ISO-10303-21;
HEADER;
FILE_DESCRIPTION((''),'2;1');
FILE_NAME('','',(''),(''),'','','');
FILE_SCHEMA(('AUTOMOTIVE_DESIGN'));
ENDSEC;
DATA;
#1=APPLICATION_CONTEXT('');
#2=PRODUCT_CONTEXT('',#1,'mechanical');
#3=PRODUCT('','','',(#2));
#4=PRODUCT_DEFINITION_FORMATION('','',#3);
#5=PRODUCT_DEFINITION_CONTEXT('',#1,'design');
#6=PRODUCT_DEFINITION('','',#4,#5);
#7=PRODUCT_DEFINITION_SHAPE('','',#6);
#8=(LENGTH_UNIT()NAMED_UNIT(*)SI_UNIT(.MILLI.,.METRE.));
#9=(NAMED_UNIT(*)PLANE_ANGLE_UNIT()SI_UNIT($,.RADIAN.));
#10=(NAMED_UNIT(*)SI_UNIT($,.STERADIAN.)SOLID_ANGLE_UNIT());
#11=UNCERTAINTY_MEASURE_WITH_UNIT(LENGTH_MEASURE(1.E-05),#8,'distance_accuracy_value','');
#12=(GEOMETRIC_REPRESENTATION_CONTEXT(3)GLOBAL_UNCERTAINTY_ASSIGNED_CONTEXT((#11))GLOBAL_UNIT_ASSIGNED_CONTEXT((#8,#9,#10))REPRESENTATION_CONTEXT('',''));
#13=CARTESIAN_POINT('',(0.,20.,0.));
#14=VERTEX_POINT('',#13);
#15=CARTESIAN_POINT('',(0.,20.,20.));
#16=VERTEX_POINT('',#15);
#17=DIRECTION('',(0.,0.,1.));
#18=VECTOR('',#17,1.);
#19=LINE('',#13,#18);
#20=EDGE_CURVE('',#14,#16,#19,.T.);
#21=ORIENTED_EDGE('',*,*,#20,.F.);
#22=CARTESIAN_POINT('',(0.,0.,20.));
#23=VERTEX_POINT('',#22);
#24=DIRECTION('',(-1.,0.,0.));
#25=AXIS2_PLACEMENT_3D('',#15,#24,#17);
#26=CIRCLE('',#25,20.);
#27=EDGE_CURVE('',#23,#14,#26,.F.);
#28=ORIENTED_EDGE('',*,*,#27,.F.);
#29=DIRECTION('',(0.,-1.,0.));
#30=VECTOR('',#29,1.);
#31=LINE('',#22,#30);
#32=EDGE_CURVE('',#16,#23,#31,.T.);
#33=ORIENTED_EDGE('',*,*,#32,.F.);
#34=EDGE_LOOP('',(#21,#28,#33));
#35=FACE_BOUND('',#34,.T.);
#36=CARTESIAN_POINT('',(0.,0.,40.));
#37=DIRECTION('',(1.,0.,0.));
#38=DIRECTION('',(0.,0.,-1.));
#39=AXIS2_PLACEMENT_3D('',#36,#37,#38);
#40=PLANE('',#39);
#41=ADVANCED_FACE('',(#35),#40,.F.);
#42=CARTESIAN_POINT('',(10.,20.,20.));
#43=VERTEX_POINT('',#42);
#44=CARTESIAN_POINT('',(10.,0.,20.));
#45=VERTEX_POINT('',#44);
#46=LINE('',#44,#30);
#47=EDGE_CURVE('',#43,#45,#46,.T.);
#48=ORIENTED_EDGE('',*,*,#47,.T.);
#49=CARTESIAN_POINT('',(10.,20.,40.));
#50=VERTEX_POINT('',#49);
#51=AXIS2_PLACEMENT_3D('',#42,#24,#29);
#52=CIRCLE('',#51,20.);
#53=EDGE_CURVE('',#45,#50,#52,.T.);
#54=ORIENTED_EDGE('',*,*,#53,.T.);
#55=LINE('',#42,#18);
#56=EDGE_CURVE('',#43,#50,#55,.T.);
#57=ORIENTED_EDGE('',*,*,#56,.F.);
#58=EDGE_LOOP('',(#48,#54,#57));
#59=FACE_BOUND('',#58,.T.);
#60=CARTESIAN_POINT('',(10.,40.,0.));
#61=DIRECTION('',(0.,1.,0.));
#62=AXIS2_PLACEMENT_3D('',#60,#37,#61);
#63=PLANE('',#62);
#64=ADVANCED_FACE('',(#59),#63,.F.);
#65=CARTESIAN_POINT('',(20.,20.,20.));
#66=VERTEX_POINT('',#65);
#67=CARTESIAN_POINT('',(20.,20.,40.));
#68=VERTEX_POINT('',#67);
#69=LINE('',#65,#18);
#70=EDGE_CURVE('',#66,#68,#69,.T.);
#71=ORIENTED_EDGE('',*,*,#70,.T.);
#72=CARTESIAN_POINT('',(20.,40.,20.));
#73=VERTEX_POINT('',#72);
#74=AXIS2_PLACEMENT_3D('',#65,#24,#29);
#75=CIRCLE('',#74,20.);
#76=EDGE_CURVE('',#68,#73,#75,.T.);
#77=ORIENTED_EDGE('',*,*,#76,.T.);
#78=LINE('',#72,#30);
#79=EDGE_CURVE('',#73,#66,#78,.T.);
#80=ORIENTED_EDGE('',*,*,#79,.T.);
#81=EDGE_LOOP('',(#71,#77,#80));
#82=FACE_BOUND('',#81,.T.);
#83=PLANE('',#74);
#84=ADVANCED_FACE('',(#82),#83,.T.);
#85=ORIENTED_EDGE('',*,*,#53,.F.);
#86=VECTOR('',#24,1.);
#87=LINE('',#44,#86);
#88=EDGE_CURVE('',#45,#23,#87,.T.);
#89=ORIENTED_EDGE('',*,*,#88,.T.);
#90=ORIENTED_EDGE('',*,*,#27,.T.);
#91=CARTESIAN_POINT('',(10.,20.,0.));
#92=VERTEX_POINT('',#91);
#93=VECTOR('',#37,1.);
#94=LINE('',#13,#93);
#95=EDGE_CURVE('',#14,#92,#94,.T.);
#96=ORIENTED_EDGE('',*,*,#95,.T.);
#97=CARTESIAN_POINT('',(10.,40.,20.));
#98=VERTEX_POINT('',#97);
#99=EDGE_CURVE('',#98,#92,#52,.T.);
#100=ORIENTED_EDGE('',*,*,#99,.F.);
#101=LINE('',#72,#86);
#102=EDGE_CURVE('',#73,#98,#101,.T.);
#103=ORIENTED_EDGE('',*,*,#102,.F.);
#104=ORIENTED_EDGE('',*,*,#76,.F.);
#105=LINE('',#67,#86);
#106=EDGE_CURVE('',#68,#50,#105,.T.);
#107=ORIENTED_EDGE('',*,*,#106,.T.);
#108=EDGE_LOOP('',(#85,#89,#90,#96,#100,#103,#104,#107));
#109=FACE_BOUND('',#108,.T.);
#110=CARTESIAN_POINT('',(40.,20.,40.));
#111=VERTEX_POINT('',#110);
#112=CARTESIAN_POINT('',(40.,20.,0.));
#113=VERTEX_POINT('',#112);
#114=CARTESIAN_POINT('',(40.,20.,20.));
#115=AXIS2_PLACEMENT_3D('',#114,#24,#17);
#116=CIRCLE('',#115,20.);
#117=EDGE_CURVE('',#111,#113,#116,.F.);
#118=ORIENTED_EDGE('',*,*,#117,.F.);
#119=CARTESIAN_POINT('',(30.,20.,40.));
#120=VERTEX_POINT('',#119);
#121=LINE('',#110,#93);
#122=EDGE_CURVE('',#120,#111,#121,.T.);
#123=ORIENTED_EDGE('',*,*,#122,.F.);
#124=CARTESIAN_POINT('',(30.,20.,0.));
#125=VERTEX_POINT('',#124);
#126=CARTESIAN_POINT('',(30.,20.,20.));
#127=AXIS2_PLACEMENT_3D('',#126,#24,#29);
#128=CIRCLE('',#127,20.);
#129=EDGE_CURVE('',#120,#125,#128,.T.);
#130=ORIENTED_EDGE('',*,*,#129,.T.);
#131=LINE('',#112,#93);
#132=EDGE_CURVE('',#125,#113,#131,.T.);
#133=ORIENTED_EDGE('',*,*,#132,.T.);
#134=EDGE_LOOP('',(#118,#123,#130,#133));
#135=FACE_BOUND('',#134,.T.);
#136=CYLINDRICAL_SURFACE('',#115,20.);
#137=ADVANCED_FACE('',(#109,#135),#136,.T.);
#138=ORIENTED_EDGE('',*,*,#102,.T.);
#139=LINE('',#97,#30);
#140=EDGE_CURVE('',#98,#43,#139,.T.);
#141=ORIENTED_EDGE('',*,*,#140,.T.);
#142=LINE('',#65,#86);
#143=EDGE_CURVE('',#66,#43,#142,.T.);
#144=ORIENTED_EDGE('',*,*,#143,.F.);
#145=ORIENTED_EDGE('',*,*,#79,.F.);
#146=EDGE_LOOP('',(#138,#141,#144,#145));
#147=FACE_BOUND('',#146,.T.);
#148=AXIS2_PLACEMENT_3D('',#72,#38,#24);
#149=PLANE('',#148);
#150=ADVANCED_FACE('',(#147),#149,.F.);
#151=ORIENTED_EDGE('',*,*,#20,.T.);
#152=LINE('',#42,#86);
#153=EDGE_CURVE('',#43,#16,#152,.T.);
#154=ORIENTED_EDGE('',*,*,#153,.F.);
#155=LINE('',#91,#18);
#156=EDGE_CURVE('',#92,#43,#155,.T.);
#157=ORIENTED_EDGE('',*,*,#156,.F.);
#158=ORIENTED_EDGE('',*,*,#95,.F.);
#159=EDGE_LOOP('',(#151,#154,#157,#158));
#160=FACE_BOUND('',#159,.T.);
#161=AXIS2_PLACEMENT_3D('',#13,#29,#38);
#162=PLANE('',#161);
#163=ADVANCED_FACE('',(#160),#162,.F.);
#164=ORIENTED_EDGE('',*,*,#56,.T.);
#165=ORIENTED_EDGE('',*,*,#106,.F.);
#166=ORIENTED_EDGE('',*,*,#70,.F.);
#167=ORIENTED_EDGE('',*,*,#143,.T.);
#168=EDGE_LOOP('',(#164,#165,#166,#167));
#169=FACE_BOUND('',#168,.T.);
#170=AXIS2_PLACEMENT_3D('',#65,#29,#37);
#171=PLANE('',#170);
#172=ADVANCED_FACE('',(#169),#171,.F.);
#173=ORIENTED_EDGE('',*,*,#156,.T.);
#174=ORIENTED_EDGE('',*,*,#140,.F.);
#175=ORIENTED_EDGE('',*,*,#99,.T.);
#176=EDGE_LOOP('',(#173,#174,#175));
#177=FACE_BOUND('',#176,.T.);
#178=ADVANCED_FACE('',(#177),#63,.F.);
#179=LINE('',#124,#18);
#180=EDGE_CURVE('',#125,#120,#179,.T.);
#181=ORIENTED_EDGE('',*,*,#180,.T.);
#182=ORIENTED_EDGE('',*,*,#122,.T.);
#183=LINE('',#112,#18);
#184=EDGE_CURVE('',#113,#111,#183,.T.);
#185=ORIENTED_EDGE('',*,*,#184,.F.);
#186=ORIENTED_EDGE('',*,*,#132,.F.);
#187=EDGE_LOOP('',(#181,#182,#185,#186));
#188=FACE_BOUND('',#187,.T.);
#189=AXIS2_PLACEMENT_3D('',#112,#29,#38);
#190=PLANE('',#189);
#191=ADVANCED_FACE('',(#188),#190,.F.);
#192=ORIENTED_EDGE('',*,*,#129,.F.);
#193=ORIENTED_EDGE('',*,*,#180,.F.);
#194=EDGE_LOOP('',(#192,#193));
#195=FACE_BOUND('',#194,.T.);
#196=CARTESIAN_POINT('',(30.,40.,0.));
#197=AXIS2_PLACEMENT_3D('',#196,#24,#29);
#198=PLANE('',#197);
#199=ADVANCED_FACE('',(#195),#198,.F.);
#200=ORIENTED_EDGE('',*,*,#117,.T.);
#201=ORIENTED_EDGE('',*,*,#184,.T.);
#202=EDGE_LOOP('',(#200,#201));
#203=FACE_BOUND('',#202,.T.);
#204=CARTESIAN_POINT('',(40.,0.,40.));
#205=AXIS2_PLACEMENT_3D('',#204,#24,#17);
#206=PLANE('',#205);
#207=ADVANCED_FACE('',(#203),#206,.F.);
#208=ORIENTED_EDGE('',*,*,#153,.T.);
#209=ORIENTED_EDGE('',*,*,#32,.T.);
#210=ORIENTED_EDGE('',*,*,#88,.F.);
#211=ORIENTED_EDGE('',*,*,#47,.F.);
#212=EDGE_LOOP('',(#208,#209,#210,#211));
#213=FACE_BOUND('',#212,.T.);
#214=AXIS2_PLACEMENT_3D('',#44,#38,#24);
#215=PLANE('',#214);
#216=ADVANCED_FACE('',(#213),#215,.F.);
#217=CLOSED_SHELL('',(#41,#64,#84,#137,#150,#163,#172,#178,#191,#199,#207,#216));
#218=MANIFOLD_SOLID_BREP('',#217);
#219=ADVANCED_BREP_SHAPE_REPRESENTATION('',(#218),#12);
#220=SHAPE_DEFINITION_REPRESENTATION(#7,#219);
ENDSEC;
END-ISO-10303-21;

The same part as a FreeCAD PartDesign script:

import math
import FreeCAD as App
import Part
import Sketcher
from FreeCAD import Vector

doc = App.newDocument("Part")
body = doc.addObject("PartDesign::Body", "Body")

sketch1 = doc.addObject("Sketcher::SketchObject", "Sketch")
body.addObject(sketch1)
sketch1.AttachmentSupport = (doc.XY_Plane, [""])
sketch1.MapMode = "FlatFace"
sketch1.addGeometry(Part.LineSegment(Vector(0, 40, 0), Vector(0, 0, 0)), False)
sketch1.addGeometry(Part.LineSegment(Vector(0, 0, 0), Vector(40, 0, 0)), False)
sketch1.addGeometry(Part.LineSegment(Vector(40, 0, 0), Vector(40, 40, 0)), False)
sketch1.addGeometry(Part.LineSegment(Vector(40, 40, 0), Vector(0, 40, 0)), False)
sketch1.addConstraint(Sketcher.Constraint("Coincident", 0, 2, 1, 1))
sketch1.addConstraint(Sketcher.Constraint("Coincident", 1, 2, 2, 1))
sketch1.addConstraint(Sketcher.Constraint("Coincident", 2, 2, 3, 1))
sketch1.addConstraint(Sketcher.Constraint("Coincident", 3, 2, 0, 1))
sketch1.addConstraint(Sketcher.Constraint("Vertical", 0))
sketch1.addConstraint(Sketcher.Constraint("Horizontal", 1))
sketch1.addConstraint(Sketcher.Constraint("Vertical", 2))
sketch1.addConstraint(Sketcher.Constraint("Horizontal", 3))
sketch1.addConstraint(Sketcher.Constraint("Coincident", 0, 2, -1, 1))
sketch1.addConstraint(Sketcher.Constraint("Equal", 3, 0))
sketch1.addConstraint(Sketcher.Constraint("DistanceX", 1, 1, 1, 2, 40.0))
pad1 = doc.addObject("PartDesign::Pad", "Pad")
body.addObject(pad1)
pad1.Profile = sketch1
pad1.Length = 40

sketch2 = doc.addObject("Sketcher::SketchObject", "Sketch001")
body.addObject(sketch2)
sketch2.AttachmentSupport = (doc.XY_Plane, [""])
sketch2.MapMode = "FlatFace"
sketch2.AttachmentOffset = App.Placement(Vector(0, 0, 40), App.Rotation())
sketch2.addGeometry(Part.LineSegment(Vector(0, 40, 0), Vector(0, 20, 0)), False)
sketch2.addGeometry(Part.LineSegment(Vector(0, 20, 0), Vector(10, 20, 0)), False)
sketch2.addGeometry(Part.LineSegment(Vector(10, 20, 0), Vector(10, 40, 0)), False)
sketch2.addGeometry(Part.LineSegment(Vector(10, 40, 0), Vector(0, 40, 0)), False)
sketch2.addGeometry(Part.LineSegment(Vector(30, 40, 0), Vector(30, 20, 0)), False)
sketch2.addGeometry(Part.LineSegment(Vector(30, 20, 0), Vector(40, 20, 0)), False)
sketch2.addGeometry(Part.LineSegment(Vector(40, 20, 0), Vector(40, 40, 0)), False)
sketch2.addGeometry(Part.LineSegment(Vector(40, 40, 0), Vector(30, 40, 0)), False)
sketch2.addConstraint(Sketcher.Constraint("Coincident", 0, 2, 1, 1))
sketch2.addConstraint(Sketcher.Constraint("Coincident", 1, 2, 2, 1))
sketch2.addConstraint(Sketcher.Constraint("Coincident", 2, 2, 3, 1))
sketch2.addConstraint(Sketcher.Constraint("Coincident", 3, 2, 0, 1))
sketch2.addConstraint(Sketcher.Constraint("Coincident", 4, 2, 5, 1))
sketch2.addConstraint(Sketcher.Constraint("Coincident", 5, 2, 6, 1))
sketch2.addConstraint(Sketcher.Constraint("Coincident", 6, 2, 7, 1))
sketch2.addConstraint(Sketcher.Constraint("Coincident", 7, 2, 4, 1))
sketch2.addConstraint(Sketcher.Constraint("Vertical", 0))
sketch2.addConstraint(Sketcher.Constraint("Horizontal", 1))
sketch2.addConstraint(Sketcher.Constraint("Vertical", 2))
sketch2.addConstraint(Sketcher.Constraint("Horizontal", 3))
sketch2.addConstraint(Sketcher.Constraint("Vertical", 4))
sketch2.addConstraint(Sketcher.Constraint("Horizontal", 5))
sketch2.addConstraint(Sketcher.Constraint("Vertical", 6))
sketch2.addConstraint(Sketcher.Constraint("Horizontal", 7))
sketch2.addConstraint(Sketcher.Constraint("PointOnObject", 0, 2, -2))
sketch2.addConstraint(Sketcher.Constraint("Horizontal", 1, 2, 4, 2))
sketch2.addConstraint(Sketcher.Constraint("Horizontal", 3, 2, 6, 2))
sketch2.addConstraint(Sketcher.Constraint("Equal", 3, 5))
sketch2.addConstraint(Sketcher.Constraint("DistanceX", 1, 1, 1, 2, 10.0))
sketch2.addConstraint(Sketcher.Constraint("DistanceY", 0, 2, 0, 1, 20.0))
sketch2.addConstraint(Sketcher.Constraint("DistanceY", -1, 1, 0, 2, 20.0))
sketch2.addConstraint(Sketcher.Constraint("DistanceX", -1, 1, 4, 2, 30.0))
pocket1 = doc.addObject("PartDesign::Pocket", "Pocket")
body.addObject(pocket1)
pocket1.Profile = sketch2
pocket1.Length = 40

sketch3 = doc.addObject("Sketcher::SketchObject", "Sketch002")
body.addObject(sketch3)
sketch3.AttachmentSupport = (doc.YZ_Plane, [""])
sketch3.MapMode = "FlatFace"
sketch3.addGeometry(Part.ArcOfCircle(Part.Circle(Vector(20, 20, 0), Vector(0, 0, 1), 20), math.radians(180), math.radians(270)), False)
sketch3.addGeometry(Part.LineSegment(Vector(20, 0, 0), Vector(0, 0, 0)), False)
sketch3.addGeometry(Part.LineSegment(Vector(0, 0, 0), Vector(0, 20, 0)), False)
sketch3.addGeometry(Part.ArcOfCircle(Part.Circle(Vector(20, 20, 0), Vector(0, 0, 1), 20), math.radians(90), math.radians(180)), False)
sketch3.addGeometry(Part.LineSegment(Vector(0, 20, 0), Vector(0, 40, 0)), False)
sketch3.addGeometry(Part.LineSegment(Vector(0, 40, 0), Vector(20, 40, 0)), False)
sketch3.addConstraint(Sketcher.Constraint("Tangent", 0, 2, 1, 1))
sketch3.addConstraint(Sketcher.Constraint("Coincident", 1, 2, 2, 1))
sketch3.addConstraint(Sketcher.Constraint("Tangent", 2, 2, 0, 1))
sketch3.addConstraint(Sketcher.Constraint("Tangent", 3, 2, 4, 1))
sketch3.addConstraint(Sketcher.Constraint("Coincident", 4, 2, 5, 1))
sketch3.addConstraint(Sketcher.Constraint("Tangent", 5, 2, 3, 1))
sketch3.addConstraint(Sketcher.Constraint("Horizontal", 1))
sketch3.addConstraint(Sketcher.Constraint("Vertical", 2))
sketch3.addConstraint(Sketcher.Constraint("Vertical", 4))
sketch3.addConstraint(Sketcher.Constraint("Horizontal", 5))
sketch3.addConstraint(Sketcher.Constraint("Coincident", 1, 2, -1, 1))
sketch3.addConstraint(Sketcher.Constraint("Coincident", 3, 3, 0, 3))
sketch3.addConstraint(Sketcher.Constraint("Equal", 0, 3))
sketch3.addConstraint(Sketcher.Constraint("Radius", 0, 20.0))
pocket2 = doc.addObject("PartDesign::Pocket", "Pocket001")
body.addObject(pocket2)
pocket2.Profile = sketch3
pocket2.Length = 40
pocket2.Reversed = True

sketch4 = doc.addObject("Sketcher::SketchObject", "Sketch003")
body.addObject(sketch4)
sketch4.AttachmentSupport = (doc.YZ_Plane, [""])
sketch4.MapMode = "FlatFace"
sketch4.AttachmentOffset = App.Placement(Vector(0, 0, 10), App.Rotation())
sketch4.addGeometry(Part.LineSegment(Vector(40, 0, 0), Vector(20, 0, 0)), False)
sketch4.addGeometry(Part.ArcOfCircle(Part.Circle(Vector(20, 20, 0), Vector(0, 0, 1), 20), math.radians(-90), math.radians(0)), False)
sketch4.addGeometry(Part.LineSegment(Vector(40, 20, 0), Vector(40, 0, 0)), False)
sketch4.addGeometry(Part.LineSegment(Vector(40, 40, 0), Vector(40, 20, 0)), False)
sketch4.addGeometry(Part.ArcOfCircle(Part.Circle(Vector(20, 20, 0), Vector(0, 0, 1), 20), math.radians(0), math.radians(90)), False)
sketch4.addGeometry(Part.LineSegment(Vector(20, 40, 0), Vector(40, 40, 0)), False)
sketch4.addConstraint(Sketcher.Constraint("Tangent", 0, 2, 1, 1))
sketch4.addConstraint(Sketcher.Constraint("Tangent", 1, 2, 2, 1))
sketch4.addConstraint(Sketcher.Constraint("Coincident", 2, 2, 0, 1))
sketch4.addConstraint(Sketcher.Constraint("Tangent", 3, 2, 4, 1))
sketch4.addConstraint(Sketcher.Constraint("Tangent", 4, 2, 5, 1))
sketch4.addConstraint(Sketcher.Constraint("Coincident", 5, 2, 3, 1))
sketch4.addConstraint(Sketcher.Constraint("Horizontal", 0))
sketch4.addConstraint(Sketcher.Constraint("Vertical", 2))
sketch4.addConstraint(Sketcher.Constraint("Vertical", 3))
sketch4.addConstraint(Sketcher.Constraint("Horizontal", 5))
sketch4.addConstraint(Sketcher.Constraint("Coincident", 4, 3, 1, 3))
sketch4.addConstraint(Sketcher.Constraint("Equal", 1, 4))
sketch4.addConstraint(Sketcher.Constraint("PointOnObject", 0, 2, -1))
sketch4.addConstraint(Sketcher.Constraint("Radius", 1, 20.0))
sketch4.addConstraint(Sketcher.Constraint("DistanceX", -1, 1, 1, 3, 20.0))
pocket3 = doc.addObject("PartDesign::Pocket", "Pocket002")
body.addObject(pocket3)
pocket3.Profile = sketch4
pocket3.Length = 40
pocket3.Reversed = True

sketch5 = doc.addObject("Sketcher::SketchObject", "Sketch004")
body.addObject(sketch5)
sketch5.AttachmentSupport = (doc.YZ_Plane, [""])
sketch5.MapMode = "FlatFace"
sketch5.addGeometry(Part.LineSegment(Vector(20, 20, 0), Vector(0, 20, 0)), False)
sketch5.addGeometry(Part.ArcOfCircle(Part.Circle(Vector(20, 20, 0), Vector(0, 0, 1), 20), math.radians(90), math.radians(180)), False)
sketch5.addGeometry(Part.LineSegment(Vector(20, 40, 0), Vector(20, 20, 0)), False)
sketch5.addConstraint(Sketcher.Constraint("Coincident", 0, 2, 1, 2))
sketch5.addConstraint(Sketcher.Constraint("Coincident", 1, 1, 2, 1))
sketch5.addConstraint(Sketcher.Constraint("Coincident", 2, 2, 0, 1))
sketch5.addConstraint(Sketcher.Constraint("Horizontal", 0))
sketch5.addConstraint(Sketcher.Constraint("Vertical", 2))
sketch5.addConstraint(Sketcher.Constraint("Coincident", 2, 2, 1, 3))
sketch5.addConstraint(Sketcher.Constraint("PointOnObject", 0, 2, -2))
sketch5.addConstraint(Sketcher.Constraint("Radius", 1, 20.0))
sketch5.addConstraint(Sketcher.Constraint("DistanceY", -1, 1, 1, 3, 20.0))
pocket4 = doc.addObject("PartDesign::Pocket", "Pocket003")
body.addObject(pocket4)
pocket4.Profile = sketch5
pocket4.Length = 10
pocket4.Reversed = True

sketch6 = doc.addObject("Sketcher::SketchObject", "Sketch005")
body.addObject(sketch6)
sketch6.AttachmentSupport = (doc.YZ_Plane, [""])
sketch6.MapMode = "FlatFace"
sketch6.AttachmentOffset = App.Placement(Vector(0, 0, 10), App.Rotation())
sketch6.addGeometry(Part.LineSegment(Vector(40, 20, 0), Vector(20, 20, 0)), False)
sketch6.addGeometry(Part.LineSegment(Vector(20, 20, 0), Vector(20, 40, 0)), False)
sketch6.addGeometry(Part.ArcOfCircle(Part.Circle(Vector(20, 20, 0), Vector(0, 0, 1), 20), math.radians(0), math.radians(90)), False)
sketch6.addConstraint(Sketcher.Constraint("Coincident", 0, 2, 1, 1))
sketch6.addConstraint(Sketcher.Constraint("Coincident", 1, 2, 2, 2))
sketch6.addConstraint(Sketcher.Constraint("Coincident", 2, 1, 0, 1))
sketch6.addConstraint(Sketcher.Constraint("Horizontal", 0))
sketch6.addConstraint(Sketcher.Constraint("Vertical", 1))
sketch6.addConstraint(Sketcher.Constraint("Coincident", 0, 2, 2, 3))
sketch6.addConstraint(Sketcher.Constraint("Radius", 2, 20.0))
sketch6.addConstraint(Sketcher.Constraint("DistanceX", -1, 1, 2, 3, 20.0))
sketch6.addConstraint(Sketcher.Constraint("DistanceY", -1, 1, 2, 3, 20.0))
pocket5 = doc.addObject("PartDesign::Pocket", "Pocket004")
body.addObject(pocket5)
pocket5.Profile = sketch6
pocket5.Length = 10
pocket5.Reversed = True

doc.recompute()
